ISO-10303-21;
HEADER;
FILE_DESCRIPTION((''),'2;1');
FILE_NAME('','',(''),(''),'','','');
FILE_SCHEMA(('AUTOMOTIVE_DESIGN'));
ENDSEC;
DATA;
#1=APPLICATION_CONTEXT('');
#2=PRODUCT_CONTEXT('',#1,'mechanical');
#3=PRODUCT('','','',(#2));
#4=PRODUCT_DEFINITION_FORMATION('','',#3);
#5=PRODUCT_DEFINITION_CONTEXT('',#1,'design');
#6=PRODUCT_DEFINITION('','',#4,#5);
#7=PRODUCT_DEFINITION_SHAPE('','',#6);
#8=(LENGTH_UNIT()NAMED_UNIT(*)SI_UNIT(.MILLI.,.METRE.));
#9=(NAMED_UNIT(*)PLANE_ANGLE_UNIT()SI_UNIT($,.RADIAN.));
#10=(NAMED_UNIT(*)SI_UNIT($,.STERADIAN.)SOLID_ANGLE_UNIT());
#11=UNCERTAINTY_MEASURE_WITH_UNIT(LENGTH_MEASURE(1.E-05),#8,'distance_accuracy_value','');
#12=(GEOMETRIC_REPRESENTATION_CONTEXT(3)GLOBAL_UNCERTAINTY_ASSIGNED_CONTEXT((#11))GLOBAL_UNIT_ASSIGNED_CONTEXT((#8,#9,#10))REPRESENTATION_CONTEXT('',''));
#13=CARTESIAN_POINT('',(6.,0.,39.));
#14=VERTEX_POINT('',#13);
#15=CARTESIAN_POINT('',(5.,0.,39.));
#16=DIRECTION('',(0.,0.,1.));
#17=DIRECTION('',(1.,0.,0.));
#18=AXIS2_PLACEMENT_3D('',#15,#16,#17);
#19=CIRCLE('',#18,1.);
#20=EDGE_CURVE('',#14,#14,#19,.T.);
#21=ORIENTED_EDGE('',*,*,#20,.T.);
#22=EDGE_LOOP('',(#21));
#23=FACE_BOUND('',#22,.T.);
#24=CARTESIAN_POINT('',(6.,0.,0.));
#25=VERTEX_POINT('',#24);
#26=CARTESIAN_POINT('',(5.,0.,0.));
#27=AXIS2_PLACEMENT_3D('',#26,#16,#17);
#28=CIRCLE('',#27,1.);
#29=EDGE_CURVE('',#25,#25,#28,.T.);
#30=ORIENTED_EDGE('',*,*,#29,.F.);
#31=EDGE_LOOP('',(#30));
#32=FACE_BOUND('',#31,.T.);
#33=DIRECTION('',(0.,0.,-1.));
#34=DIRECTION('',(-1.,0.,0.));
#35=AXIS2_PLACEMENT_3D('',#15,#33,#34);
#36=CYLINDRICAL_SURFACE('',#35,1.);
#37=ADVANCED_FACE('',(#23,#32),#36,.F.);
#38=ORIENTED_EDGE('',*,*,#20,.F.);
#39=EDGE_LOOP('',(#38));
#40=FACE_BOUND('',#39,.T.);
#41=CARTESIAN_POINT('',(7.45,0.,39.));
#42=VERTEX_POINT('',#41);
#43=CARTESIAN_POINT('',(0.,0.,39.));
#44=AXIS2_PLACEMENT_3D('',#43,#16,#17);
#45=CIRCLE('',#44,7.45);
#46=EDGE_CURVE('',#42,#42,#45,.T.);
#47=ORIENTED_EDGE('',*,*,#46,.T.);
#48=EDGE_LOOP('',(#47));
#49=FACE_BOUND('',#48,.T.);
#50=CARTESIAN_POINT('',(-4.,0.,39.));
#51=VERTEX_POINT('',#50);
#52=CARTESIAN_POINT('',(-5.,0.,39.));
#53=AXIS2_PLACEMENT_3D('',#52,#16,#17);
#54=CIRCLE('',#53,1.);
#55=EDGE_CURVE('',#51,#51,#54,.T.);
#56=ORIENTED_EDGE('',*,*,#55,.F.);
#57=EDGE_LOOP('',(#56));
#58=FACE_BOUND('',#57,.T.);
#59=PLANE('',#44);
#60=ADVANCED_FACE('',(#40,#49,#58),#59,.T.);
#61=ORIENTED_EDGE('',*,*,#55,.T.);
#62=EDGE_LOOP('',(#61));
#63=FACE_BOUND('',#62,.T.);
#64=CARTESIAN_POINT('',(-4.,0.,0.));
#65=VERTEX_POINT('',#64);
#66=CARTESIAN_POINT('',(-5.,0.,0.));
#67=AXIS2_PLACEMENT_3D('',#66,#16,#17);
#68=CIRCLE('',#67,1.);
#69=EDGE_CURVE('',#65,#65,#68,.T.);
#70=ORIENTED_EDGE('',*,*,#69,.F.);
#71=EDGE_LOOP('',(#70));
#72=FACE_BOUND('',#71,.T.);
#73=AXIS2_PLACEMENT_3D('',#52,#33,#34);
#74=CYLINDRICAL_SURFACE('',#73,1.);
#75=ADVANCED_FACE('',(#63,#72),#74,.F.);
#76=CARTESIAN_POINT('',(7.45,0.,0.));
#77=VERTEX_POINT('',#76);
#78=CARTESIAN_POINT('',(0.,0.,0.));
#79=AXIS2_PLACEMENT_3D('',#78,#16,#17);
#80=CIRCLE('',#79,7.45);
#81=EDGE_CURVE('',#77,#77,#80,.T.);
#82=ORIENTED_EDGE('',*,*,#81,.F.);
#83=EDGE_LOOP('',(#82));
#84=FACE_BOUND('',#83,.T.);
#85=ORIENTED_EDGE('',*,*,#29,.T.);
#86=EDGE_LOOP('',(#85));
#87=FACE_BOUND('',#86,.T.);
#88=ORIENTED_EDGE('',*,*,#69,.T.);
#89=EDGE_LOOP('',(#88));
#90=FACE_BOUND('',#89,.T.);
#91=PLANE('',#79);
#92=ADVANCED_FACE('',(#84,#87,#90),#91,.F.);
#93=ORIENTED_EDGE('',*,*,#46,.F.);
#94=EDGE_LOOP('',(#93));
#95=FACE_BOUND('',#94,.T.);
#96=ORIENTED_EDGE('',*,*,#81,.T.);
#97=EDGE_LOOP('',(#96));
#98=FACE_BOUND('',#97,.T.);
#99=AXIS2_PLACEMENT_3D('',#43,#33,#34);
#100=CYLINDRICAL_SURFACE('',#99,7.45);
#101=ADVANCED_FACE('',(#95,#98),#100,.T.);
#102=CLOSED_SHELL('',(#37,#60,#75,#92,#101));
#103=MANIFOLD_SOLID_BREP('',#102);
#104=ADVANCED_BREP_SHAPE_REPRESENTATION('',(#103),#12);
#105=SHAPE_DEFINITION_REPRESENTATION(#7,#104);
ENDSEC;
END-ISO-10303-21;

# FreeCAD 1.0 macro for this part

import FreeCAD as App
import Part
import Sketcher
Q = App.Units.Quantity

doc = App.newDocument("Part")
params = doc.addObject("Spreadsheet::Sheet", "Params")
for row, (alias, value) in enumerate([
    ("sketch1_diameter", "2 mm"),
    ("sketch1_diameter2", "14.9 mm"),
    ("pad1_length", "39 mm"),
], start=1):
    params.set(f"A{row}", alias)
    params.set(f"B{row}", "=" + value)
    params.setAlias(f"B{row}", alias)

body = doc.addObject("PartDesign::Body", "Body")

# Sketch on XY plane
sketch1 = body.newObject("Sketcher::SketchObject", "Sketch")
sketch1.AttachmentSupport = (doc.getObject("XY_Plane"), [""])
sketch1.MapMode = "FlatFace"
sketch1.addGeometry(Part.Circle(App.Vector(0, 0, 0), App.Vector(0, 0, 1), 7.5), False)
sketch1.addGeometry(Part.Circle(App.Vector(-5, 0, 0), App.Vector(0, 0, 1), 1), False)
sketch1.addGeometry(Part.Circle(App.Vector(5, 0, 0), App.Vector(0, 0, 1), 1), False)
sketch1.addConstraint(Sketcher.Constraint("Coincident", 0, 3, -1, 1))
sketch1.addConstraint(Sketcher.Constraint("Equal", 1, 2))
sketch1.addConstraint(Sketcher.Constraint("Symmetric", 1, 3, 2, 3, -1, 1))
sketch1.addConstraint(Sketcher.Constraint("PointOnObject", 1, 3, -1))
sketch1.addConstraint(Sketcher.Constraint("Diameter", 1, Q("2 mm")))
sketch1.addConstraint(Sketcher.Constraint("Diameter", 0, Q("14.9 mm")))
sketch1.addConstraint(Sketcher.Constraint("DistanceX", 1, 3, -1, 1, Q("5 mm")))
sketch1.setExpression("Constraints[4]", "Params.sketch1_diameter")
sketch1.setExpression("Constraints[5]", "Params.sketch1_diameter2")
pad1 = body.newObject("PartDesign::Pad", "Pad")
pad1.Profile = sketch1
pad1.setExpression("Length", "Params.pad1_length")

doc.recompute()
